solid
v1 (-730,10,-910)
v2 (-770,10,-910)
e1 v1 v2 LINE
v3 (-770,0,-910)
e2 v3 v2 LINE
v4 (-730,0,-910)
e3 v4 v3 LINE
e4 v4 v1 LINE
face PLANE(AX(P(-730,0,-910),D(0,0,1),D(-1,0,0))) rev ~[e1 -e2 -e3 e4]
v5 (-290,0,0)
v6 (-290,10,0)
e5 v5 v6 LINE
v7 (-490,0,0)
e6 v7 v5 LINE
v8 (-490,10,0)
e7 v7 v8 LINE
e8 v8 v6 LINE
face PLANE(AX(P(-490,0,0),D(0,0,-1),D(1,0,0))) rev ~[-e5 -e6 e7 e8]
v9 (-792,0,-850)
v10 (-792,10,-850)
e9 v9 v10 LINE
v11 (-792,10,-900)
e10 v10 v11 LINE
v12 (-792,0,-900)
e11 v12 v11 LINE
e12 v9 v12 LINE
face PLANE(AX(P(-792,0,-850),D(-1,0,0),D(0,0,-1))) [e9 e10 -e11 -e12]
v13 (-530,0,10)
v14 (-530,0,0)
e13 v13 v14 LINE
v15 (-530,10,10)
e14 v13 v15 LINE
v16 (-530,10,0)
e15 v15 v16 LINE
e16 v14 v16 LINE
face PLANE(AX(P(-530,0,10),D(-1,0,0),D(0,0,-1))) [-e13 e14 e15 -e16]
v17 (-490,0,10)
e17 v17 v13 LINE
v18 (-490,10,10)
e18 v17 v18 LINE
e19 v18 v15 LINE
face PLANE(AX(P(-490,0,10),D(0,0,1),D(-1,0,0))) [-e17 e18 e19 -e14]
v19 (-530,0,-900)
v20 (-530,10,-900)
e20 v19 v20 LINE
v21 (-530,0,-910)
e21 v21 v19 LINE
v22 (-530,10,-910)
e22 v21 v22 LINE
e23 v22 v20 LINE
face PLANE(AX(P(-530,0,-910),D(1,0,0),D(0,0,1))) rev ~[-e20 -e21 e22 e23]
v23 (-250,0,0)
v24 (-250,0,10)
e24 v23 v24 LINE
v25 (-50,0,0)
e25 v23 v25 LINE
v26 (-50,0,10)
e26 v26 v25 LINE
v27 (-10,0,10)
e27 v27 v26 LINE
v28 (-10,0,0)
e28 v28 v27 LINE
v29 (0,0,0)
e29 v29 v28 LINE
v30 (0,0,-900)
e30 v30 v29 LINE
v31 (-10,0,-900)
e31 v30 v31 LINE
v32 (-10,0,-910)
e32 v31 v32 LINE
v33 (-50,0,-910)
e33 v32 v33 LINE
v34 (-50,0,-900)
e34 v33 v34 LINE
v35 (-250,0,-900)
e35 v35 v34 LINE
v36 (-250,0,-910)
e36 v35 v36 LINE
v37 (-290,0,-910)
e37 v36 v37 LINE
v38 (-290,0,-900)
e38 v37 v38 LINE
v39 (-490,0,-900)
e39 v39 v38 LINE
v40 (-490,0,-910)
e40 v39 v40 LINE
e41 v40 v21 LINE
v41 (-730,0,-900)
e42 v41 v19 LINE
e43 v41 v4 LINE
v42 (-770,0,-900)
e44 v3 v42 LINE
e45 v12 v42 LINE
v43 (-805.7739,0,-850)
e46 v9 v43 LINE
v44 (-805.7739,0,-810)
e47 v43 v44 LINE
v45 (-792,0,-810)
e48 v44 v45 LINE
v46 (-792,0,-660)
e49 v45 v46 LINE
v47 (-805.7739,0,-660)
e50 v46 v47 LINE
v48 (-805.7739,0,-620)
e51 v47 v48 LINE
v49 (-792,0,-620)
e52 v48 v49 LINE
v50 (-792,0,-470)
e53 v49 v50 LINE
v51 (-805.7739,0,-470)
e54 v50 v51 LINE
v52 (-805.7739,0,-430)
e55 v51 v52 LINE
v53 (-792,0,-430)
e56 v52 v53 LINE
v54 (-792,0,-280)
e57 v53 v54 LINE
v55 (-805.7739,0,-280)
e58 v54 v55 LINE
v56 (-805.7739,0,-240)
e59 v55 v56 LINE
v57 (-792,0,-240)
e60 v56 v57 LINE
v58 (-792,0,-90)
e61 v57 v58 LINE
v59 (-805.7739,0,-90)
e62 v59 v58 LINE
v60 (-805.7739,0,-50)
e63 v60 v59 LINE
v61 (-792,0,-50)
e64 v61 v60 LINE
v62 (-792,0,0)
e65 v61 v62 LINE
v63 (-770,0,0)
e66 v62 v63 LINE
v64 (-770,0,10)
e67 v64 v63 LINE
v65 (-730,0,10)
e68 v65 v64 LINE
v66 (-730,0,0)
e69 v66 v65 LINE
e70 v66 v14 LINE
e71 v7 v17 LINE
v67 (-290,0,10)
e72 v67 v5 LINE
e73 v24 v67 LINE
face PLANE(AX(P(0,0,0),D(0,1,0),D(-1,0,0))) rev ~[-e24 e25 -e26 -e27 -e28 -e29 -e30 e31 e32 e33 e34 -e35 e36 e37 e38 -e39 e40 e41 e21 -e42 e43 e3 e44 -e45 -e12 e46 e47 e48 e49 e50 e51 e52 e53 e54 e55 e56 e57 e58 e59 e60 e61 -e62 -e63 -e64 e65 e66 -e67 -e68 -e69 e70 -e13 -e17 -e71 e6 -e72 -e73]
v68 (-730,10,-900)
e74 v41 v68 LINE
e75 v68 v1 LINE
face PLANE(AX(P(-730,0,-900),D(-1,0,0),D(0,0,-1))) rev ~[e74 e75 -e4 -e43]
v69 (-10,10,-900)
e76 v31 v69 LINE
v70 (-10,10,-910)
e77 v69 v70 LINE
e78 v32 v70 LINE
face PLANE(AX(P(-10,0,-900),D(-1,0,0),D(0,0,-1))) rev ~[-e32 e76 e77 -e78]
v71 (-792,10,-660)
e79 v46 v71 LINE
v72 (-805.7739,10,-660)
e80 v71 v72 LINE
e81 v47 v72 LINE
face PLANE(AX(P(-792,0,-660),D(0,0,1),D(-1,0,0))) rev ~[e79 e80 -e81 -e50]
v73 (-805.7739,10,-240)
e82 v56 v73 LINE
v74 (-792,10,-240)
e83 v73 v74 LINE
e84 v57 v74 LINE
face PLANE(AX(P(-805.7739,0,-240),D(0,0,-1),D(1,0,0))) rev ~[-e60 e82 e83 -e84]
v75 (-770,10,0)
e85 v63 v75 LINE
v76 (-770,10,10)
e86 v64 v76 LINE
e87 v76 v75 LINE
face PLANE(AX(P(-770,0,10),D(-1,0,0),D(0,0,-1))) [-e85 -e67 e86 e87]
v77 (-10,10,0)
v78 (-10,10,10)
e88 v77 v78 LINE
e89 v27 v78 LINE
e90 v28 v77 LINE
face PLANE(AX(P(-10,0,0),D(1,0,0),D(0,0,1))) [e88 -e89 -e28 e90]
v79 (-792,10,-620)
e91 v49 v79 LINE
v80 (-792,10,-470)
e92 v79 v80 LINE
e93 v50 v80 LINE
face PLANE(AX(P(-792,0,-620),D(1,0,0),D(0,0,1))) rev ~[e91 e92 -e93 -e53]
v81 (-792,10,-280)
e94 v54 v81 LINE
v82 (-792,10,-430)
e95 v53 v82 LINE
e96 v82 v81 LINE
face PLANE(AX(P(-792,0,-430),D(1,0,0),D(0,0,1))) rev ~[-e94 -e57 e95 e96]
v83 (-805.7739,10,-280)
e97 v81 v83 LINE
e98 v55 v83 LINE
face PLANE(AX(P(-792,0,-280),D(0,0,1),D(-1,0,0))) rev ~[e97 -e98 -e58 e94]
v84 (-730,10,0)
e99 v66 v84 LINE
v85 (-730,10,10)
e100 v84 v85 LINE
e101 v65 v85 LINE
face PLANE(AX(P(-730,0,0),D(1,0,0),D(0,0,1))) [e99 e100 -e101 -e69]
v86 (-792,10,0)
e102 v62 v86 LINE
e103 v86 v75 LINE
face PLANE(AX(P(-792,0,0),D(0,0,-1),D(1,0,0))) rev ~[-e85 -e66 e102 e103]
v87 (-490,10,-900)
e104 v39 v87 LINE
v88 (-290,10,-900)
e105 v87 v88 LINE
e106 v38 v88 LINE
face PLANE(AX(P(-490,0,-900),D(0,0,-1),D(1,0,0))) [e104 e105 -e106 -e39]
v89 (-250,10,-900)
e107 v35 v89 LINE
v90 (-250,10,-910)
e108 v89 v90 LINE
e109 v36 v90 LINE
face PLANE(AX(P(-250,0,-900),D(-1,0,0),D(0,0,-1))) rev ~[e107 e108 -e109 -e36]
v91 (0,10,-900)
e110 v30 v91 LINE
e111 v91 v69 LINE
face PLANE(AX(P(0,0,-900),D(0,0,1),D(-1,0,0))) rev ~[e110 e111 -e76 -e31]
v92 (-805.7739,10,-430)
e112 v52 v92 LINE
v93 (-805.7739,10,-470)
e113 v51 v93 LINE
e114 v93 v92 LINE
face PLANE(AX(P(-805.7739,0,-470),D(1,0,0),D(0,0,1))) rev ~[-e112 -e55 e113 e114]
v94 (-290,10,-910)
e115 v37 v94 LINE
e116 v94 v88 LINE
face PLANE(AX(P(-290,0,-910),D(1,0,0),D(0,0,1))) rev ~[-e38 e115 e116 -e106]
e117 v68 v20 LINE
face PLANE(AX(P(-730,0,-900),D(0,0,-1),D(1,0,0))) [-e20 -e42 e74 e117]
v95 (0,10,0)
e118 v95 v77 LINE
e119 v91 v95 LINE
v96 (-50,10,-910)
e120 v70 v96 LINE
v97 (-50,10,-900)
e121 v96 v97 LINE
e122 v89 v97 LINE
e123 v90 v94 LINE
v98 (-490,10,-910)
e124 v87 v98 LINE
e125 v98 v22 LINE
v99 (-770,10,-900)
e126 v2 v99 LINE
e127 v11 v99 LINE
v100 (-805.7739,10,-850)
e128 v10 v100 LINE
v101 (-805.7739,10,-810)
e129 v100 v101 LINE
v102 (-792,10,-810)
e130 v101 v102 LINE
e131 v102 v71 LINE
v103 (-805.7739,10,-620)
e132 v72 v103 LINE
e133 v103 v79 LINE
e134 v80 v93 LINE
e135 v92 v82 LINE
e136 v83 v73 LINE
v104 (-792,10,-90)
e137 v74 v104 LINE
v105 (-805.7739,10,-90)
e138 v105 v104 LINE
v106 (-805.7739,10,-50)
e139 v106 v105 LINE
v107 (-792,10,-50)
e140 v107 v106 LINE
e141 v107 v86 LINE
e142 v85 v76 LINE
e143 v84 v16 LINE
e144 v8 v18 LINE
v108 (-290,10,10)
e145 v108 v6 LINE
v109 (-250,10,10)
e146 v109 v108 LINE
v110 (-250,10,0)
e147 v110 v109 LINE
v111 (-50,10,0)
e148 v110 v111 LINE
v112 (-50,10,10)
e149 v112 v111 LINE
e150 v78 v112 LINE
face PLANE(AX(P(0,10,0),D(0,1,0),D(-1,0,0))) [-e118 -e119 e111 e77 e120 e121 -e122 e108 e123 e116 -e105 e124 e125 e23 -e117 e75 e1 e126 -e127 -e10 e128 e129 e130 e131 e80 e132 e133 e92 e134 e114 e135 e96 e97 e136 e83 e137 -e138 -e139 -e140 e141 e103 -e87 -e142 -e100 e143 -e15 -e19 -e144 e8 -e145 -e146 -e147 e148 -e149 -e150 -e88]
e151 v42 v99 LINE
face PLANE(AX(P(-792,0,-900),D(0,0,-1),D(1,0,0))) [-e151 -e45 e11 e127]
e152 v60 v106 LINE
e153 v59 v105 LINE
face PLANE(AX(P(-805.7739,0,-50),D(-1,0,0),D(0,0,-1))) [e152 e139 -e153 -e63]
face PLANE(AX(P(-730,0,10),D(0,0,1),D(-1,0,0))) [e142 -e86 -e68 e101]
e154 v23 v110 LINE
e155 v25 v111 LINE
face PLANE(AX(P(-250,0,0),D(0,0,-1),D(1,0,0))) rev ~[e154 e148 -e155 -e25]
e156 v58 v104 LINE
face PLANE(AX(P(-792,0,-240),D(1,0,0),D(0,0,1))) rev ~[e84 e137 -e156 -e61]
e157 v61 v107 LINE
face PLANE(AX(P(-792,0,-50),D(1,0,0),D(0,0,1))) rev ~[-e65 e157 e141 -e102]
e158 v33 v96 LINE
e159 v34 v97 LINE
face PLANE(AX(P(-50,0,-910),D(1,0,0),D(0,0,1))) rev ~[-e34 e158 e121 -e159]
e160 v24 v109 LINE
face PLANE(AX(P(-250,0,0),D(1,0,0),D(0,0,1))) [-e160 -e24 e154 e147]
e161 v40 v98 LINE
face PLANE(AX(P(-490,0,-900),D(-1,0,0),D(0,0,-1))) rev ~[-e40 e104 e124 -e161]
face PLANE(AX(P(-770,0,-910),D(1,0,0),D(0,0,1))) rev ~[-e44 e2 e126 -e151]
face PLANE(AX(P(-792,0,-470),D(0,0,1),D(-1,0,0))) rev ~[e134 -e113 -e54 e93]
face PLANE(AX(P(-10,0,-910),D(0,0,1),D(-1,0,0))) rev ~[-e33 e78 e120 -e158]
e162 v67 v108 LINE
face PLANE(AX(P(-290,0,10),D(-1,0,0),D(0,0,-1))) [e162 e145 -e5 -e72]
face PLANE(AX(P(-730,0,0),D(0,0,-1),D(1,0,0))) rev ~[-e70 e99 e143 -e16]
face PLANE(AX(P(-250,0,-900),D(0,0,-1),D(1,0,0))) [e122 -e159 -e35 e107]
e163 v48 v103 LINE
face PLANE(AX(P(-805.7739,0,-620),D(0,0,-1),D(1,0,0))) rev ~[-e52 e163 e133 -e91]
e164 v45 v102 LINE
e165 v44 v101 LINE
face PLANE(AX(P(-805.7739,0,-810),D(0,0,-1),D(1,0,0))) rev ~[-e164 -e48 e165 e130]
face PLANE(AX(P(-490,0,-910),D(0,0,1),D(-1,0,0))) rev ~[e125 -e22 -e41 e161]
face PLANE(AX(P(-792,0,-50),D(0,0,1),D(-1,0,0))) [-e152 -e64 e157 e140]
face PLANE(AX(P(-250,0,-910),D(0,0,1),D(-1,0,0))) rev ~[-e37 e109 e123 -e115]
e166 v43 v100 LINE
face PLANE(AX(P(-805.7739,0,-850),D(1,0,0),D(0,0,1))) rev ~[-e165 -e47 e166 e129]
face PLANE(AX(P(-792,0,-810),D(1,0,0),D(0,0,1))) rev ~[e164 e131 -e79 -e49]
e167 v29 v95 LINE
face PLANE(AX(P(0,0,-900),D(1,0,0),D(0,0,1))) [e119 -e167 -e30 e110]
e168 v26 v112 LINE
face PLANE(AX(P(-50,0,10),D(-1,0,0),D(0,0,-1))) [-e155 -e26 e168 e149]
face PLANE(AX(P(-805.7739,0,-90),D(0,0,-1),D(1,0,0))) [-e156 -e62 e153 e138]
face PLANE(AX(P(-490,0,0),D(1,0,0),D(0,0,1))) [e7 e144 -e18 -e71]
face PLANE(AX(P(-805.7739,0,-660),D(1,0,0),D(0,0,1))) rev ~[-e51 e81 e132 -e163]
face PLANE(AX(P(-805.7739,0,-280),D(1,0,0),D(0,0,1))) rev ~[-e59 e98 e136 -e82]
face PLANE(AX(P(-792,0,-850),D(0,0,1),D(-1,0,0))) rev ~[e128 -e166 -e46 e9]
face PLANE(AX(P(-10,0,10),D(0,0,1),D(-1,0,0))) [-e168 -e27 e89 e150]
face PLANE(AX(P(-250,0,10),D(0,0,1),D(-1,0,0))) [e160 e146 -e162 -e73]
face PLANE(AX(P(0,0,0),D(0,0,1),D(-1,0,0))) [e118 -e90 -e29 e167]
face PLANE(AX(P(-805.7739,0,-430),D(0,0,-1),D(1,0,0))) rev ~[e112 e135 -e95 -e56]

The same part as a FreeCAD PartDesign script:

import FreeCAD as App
import Part
import Sketcher

V = App.Vector
Q = App.Units.Quantity


def add_polygon(sketch, points):
    """Adds a closed chain of lines whose ends are joined by coincident constraints."""
    first, n = sketch.GeometryCount, len(points)
    for a, b in zip(points, points[1:] + points[:1]):
        sketch.addGeometry(Part.LineSegment(App.Vector(*a, 0), App.Vector(*b, 0)), False)
    for i in range(n):
        sketch.addConstraint(Sketcher.Constraint("Coincident", first + i, 2, first + (i + 1) % n, 1))

doc = App.newDocument("Part")
body = doc.addObject("PartDesign::Body", "Body")

# Sketch on XZ plane
sketch1 = body.newObject("Sketcher::SketchObject", "Sketch")
sketch1.AttachmentSupport = (doc.getObject("XZ_Plane"), [""])
sketch1.MapMode = "FlatFace"
add_polygon(sketch1, [(0, 0), (0, -900), (-10, -900), (-10, -910), (-50, -910), (-50, -900), (-250, -900), (-250, -910), (-290, -910), (-290, -900), (-490, -900), (-490, -910), (-530, -910), (-530, -900), (-730, -900), (-730, -910), (-770, -910), (-770, -900), (-792, -900), (-792, -850), (-806, -850), (-806, -810), (-792, -810), (-792, -660), (-806, -660), (-806, -620), (-792, -620), (-792, -470), (-806, -470), (-806, -430), (-792, -430), (-792, -280), (-806, -280), (-806, -240), (-792, -240), (-792, -90), (-806, -90), (-806, -50), (-792, -50), (-792, 0), (-770, 0), (-770, 10), (-730, 10), (-730, 0), (-530, 0), (-530, 10), (-490, 10), (-490, 0), (-290, 0), (-290, 10), (-250, 10), (-250, 0), (-50, 0), (-50, 10), (-10, 10), (-10, 0)])  # lines 0-55
sketch1.addConstraint([
    Sketcher.Constraint("Vertical", 0),
    Sketcher.Constraint("Horizontal", 1),
    Sketcher.Constraint("Vertical", 2),
    Sketcher.Constraint("Horizontal", 3),
    Sketcher.Constraint("Vertical", 4),
    Sketcher.Constraint("Horizontal", 5),
    Sketcher.Constraint("Vertical", 6),
    Sketcher.Constraint("Horizontal", 7),
    Sketcher.Constraint("Vertical", 8),
    Sketcher.Constraint("Horizontal", 9),
    Sketcher.Constraint("Vertical", 10),
    Sketcher.Constraint("Horizontal", 11),
    Sketcher.Constraint("Vertical", 12),
    Sketcher.Constraint("Horizontal", 13),
    Sketcher.Constraint("Vertical", 14),
    Sketcher.Constraint("Horizontal", 15),
    Sketcher.Constraint("Vertical", 16),
    Sketcher.Constraint("Horizontal", 17),
    Sketcher.Constraint("Vertical", 18),
    Sketcher.Constraint("Horizontal", 19),
    Sketcher.Constraint("Vertical", 20),
    Sketcher.Constraint("Horizontal", 21),
    Sketcher.Constraint("Vertical", 22),
    Sketcher.Constraint("Horizontal", 23),
    Sketcher.Constraint("Vertical", 24),
    Sketcher.Constraint("Horizontal", 25),
    Sketcher.Constraint("Vertical", 26),
    Sketcher.Constraint("Horizontal", 27),
    Sketcher.Constraint("Vertical", 28),
    Sketcher.Constraint("Horizontal", 29),
    Sketcher.Constraint("Vertical", 30),
    Sketcher.Constraint("Horizontal", 31),
    Sketcher.Constraint("Vertical", 32),
    Sketcher.Constraint("Horizontal", 33),
    Sketcher.Constraint("Vertical", 34),
    Sketcher.Constraint("Horizontal", 35),
    Sketcher.Constraint("Vertical", 36),
    Sketcher.Constraint("Horizontal", 37),
    Sketcher.Constraint("Vertical", 38),
    Sketcher.Constraint("Horizontal", 39),
    Sketcher.Constraint("Vertical", 40),
    Sketcher.Constraint("Horizontal", 41),
    Sketcher.Constraint("Vertical", 42),
    Sketcher.Constraint("Horizontal", 43),
    Sketcher.Constraint("Vertical", 44),
    Sketcher.Constraint("Horizontal", 45),
    Sketcher.Constraint("Vertical", 46),
    Sketcher.Constraint("Horizontal", 47),
    Sketcher.Constraint("Vertical", 48),
    Sketcher.Constraint("Horizontal", 49),
    Sketcher.Constraint("Vertical", 50),
    Sketcher.Constraint("Horizontal", 51),
    Sketcher.Constraint("Vertical", 52),
    Sketcher.Constraint("Horizontal", 53),
    Sketcher.Constraint("Vertical", 54),
    Sketcher.Constraint("Horizontal", 55),
    Sketcher.Constraint("Coincident", 55, 2, -1, 1),
    Sketcher.Constraint("PointOnObject", 38, 2, -1),
    Sketcher.Constraint("PointOnObject", 42, 2, -1),
    Sketcher.Constraint("PointOnObject", 46, 2, -1),
    Sketcher.Constraint("PointOnObject", 50, 2, -1),
    Sketcher.Constraint("Horizontal", 1, 2, 4, 2),
    Sketcher.Constraint("Horizontal", 3, 2, 6, 2),
    Sketcher.Constraint("Horizontal", 5, 2, 8, 2),
    Sketcher.Constraint("Horizontal", 7, 2, 10, 2),
    Sketcher.Constraint("Horizontal", 9, 2, 12, 2),
    Sketcher.Constraint("Horizontal", 11, 2, 14, 2),
    Sketcher.Constraint("Horizontal", 13, 2, 16, 2),
    Sketcher.Constraint("Horizontal", 41, 2, 44, 2),
    Sketcher.Constraint("Horizontal", 45, 2, 48, 2),
    Sketcher.Constraint("Horizontal", 49, 2, 52, 2),
    Sketcher.Constraint("Vertical", 18, 2, 21, 2),
    Sketcher.Constraint("Vertical", 20, 2, 23, 2),
    Sketcher.Constraint("Vertical", 22, 2, 25, 2),
    Sketcher.Constraint("Vertical", 24, 2, 27, 2),
    Sketcher.Constraint("Vertical", 26, 2, 29, 2),
    Sketcher.Constraint("Vertical", 28, 2, 31, 2),
    Sketcher.Constraint("Vertical", 30, 2, 33, 2),
    Sketcher.Constraint("Vertical", 32, 2, 35, 2),
    Sketcher.Constraint("Vertical", 34, 2, 37, 2),
    Sketcher.Constraint("Vertical", 16, 2, 39, 2),
    Sketcher.Constraint("Vertical", 14, 2, 41, 2),
    Sketcher.Constraint("Vertical", 12, 2, 43, 2),
    Sketcher.Constraint("Vertical", 10, 2, 45, 2),
    Sketcher.Constraint("Vertical", 8, 2, 47, 2),
    Sketcher.Constraint("Vertical", 6, 2, 49, 2),
    Sketcher.Constraint("Vertical", 4, 2, 51, 2),
    Sketcher.Constraint("Vertical", 2, 2, 53, 2),
    Sketcher.Constraint("Equal", 3, 7),
    Sketcher.Constraint("Equal", 5, 9),
    Sketcher.Constraint("Equal", 7, 11),
    Sketcher.Constraint("Equal", 9, 13),
    Sketcher.Constraint("Equal", 11, 15),
    Sketcher.Constraint("Equal", 55, 2),
    Sketcher.Constraint("Equal", 53, 20),
    Sketcher.Constraint("Equal", 20, 24),
    Sketcher.Constraint("Equal", 22, 26),
    Sketcher.Constraint("Equal", 24, 28),
    Sketcher.Constraint("Equal", 26, 30),
    Sketcher.Constraint("Equal", 28, 32),
    Sketcher.Constraint("Equal", 30, 34),
    Sketcher.Constraint("Equal", 32, 36),
    Sketcher.Constraint("Equal", 18, 38),
    Sketcher.Constraint("Equal", 16, 40),
    Sketcher.Constraint("DistanceX", 1, 2, 1, 1, Q("10 mm")),
    Sketcher.Constraint("DistanceX", 3, 2, 3, 1, Q("40 mm")),
    Sketcher.Constraint("DistanceX", 5, 2, 5, 1, Q("200 mm")),
    Sketcher.Constraint("DistanceX", 17, 2, 17, 1, Q("22 mm")),
    Sketcher.Constraint("DistanceY", 0, 2, 0, 1, Q("900 mm")),
    Sketcher.Constraint("DistanceY", 18, 1, 18, 2, Q("50 mm")),
    Sketcher.Constraint("DistanceX", 19, 2, 19, 1, Q("13.774 mm")),
])
pad1 = body.newObject("PartDesign::Pad", "Pad")
pad1.Profile = sketch1
pad1.Length = 10
pad1.Reversed = True

doc.recompute()
